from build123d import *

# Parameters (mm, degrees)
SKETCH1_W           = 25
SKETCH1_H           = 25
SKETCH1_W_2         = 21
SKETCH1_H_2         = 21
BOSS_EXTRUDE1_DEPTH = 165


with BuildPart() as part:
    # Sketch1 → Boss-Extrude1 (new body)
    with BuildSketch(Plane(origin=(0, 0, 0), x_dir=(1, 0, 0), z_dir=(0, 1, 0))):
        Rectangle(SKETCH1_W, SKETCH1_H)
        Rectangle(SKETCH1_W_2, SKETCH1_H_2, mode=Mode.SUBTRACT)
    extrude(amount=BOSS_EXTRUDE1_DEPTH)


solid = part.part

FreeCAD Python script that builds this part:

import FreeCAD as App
import Part
import Sketcher

V = App.Vector

doc = App.newDocument("Part")
body = doc.addObject("PartDesign::Body", "Body")

# Sketch on XZ plane
sketch1 = body.newObject("Sketcher::SketchObject", "Sketch")
sketch1.AttachmentSupport = (doc.getObject("XZ_Plane"), [""])
sketch1.MapMode = "FlatFace"
sketch1.addGeometry([
    Part.LineSegment(V(-12, -12, 0), V(-12, 12, 0)),  # 0
    Part.LineSegment(V(-12, 12, 0), V(12, 12, 0)),  # 1
    Part.LineSegment(V(12, 12, 0), V(12, -12, 0)),  # 2
    Part.LineSegment(V(12, -12, 0), V(-12, -12, 0)),  # 3
    Part.LineSegment(V(10, 10, 0), V(-10, 10, 0)),  # 4
    Part.LineSegment(V(-10, 10, 0), V(-10, -10, 0)),  # 5
    Part.LineSegment(V(-10, -10, 0), V(10, -10, 0)),  # 6
    Part.LineSegment(V(10, -10, 0), V(10, 10, 0)),  # 7
], False)
sketch1.addConstraint([
    Sketcher.Constraint("Coincident", 0, 2, 1, 1),
    Sketcher.Constraint("Coincident", 1, 2, 2, 1),
    Sketcher.Constraint("Coincident", 2, 2, 3, 1),
    Sketcher.Constraint("Coincident", 3, 2, 0, 1),
    Sketcher.Constraint("Coincident", 4, 2, 5, 1),
    Sketcher.Constraint("Coincident", 5, 2, 6, 1),
    Sketcher.Constraint("Coincident", 6, 2, 7, 1),
    Sketcher.Constraint("Coincident", 7, 2, 4, 1),
    Sketcher.Constraint("Vertical", 0),
    Sketcher.Constraint("Horizontal", 1),
    Sketcher.Constraint("Vertical", 2),
    Sketcher.Constraint("Horizontal", 3),
    Sketcher.Constraint("Horizontal", 4),
    Sketcher.Constraint("Vertical", 5),
    Sketcher.Constraint("Horizontal", 6),
    Sketcher.Constraint("Vertical", 7),
    Sketcher.Constraint("Symmetric", 0, 2, 2, 2, -1, 1),
    Sketcher.Constraint("Symmetric", 4, 2, 6, 2, -1, 1),
    Sketcher.Constraint("Equal", 3, 0),
    Sketcher.Constraint("Equal", 6, 5),
    Sketcher.Constraint("DistanceX", 1, 1, 1, 2, 25.0),
    Sketcher.Constraint("DistanceX", 4, 2, 4, 1, 21.0),
])
pad1 = body.newObject("PartDesign::Pad", "Pad")
pad1.Profile = sketch1
pad1.Length = 165
pad1.Reversed = True

doc.recompute()
